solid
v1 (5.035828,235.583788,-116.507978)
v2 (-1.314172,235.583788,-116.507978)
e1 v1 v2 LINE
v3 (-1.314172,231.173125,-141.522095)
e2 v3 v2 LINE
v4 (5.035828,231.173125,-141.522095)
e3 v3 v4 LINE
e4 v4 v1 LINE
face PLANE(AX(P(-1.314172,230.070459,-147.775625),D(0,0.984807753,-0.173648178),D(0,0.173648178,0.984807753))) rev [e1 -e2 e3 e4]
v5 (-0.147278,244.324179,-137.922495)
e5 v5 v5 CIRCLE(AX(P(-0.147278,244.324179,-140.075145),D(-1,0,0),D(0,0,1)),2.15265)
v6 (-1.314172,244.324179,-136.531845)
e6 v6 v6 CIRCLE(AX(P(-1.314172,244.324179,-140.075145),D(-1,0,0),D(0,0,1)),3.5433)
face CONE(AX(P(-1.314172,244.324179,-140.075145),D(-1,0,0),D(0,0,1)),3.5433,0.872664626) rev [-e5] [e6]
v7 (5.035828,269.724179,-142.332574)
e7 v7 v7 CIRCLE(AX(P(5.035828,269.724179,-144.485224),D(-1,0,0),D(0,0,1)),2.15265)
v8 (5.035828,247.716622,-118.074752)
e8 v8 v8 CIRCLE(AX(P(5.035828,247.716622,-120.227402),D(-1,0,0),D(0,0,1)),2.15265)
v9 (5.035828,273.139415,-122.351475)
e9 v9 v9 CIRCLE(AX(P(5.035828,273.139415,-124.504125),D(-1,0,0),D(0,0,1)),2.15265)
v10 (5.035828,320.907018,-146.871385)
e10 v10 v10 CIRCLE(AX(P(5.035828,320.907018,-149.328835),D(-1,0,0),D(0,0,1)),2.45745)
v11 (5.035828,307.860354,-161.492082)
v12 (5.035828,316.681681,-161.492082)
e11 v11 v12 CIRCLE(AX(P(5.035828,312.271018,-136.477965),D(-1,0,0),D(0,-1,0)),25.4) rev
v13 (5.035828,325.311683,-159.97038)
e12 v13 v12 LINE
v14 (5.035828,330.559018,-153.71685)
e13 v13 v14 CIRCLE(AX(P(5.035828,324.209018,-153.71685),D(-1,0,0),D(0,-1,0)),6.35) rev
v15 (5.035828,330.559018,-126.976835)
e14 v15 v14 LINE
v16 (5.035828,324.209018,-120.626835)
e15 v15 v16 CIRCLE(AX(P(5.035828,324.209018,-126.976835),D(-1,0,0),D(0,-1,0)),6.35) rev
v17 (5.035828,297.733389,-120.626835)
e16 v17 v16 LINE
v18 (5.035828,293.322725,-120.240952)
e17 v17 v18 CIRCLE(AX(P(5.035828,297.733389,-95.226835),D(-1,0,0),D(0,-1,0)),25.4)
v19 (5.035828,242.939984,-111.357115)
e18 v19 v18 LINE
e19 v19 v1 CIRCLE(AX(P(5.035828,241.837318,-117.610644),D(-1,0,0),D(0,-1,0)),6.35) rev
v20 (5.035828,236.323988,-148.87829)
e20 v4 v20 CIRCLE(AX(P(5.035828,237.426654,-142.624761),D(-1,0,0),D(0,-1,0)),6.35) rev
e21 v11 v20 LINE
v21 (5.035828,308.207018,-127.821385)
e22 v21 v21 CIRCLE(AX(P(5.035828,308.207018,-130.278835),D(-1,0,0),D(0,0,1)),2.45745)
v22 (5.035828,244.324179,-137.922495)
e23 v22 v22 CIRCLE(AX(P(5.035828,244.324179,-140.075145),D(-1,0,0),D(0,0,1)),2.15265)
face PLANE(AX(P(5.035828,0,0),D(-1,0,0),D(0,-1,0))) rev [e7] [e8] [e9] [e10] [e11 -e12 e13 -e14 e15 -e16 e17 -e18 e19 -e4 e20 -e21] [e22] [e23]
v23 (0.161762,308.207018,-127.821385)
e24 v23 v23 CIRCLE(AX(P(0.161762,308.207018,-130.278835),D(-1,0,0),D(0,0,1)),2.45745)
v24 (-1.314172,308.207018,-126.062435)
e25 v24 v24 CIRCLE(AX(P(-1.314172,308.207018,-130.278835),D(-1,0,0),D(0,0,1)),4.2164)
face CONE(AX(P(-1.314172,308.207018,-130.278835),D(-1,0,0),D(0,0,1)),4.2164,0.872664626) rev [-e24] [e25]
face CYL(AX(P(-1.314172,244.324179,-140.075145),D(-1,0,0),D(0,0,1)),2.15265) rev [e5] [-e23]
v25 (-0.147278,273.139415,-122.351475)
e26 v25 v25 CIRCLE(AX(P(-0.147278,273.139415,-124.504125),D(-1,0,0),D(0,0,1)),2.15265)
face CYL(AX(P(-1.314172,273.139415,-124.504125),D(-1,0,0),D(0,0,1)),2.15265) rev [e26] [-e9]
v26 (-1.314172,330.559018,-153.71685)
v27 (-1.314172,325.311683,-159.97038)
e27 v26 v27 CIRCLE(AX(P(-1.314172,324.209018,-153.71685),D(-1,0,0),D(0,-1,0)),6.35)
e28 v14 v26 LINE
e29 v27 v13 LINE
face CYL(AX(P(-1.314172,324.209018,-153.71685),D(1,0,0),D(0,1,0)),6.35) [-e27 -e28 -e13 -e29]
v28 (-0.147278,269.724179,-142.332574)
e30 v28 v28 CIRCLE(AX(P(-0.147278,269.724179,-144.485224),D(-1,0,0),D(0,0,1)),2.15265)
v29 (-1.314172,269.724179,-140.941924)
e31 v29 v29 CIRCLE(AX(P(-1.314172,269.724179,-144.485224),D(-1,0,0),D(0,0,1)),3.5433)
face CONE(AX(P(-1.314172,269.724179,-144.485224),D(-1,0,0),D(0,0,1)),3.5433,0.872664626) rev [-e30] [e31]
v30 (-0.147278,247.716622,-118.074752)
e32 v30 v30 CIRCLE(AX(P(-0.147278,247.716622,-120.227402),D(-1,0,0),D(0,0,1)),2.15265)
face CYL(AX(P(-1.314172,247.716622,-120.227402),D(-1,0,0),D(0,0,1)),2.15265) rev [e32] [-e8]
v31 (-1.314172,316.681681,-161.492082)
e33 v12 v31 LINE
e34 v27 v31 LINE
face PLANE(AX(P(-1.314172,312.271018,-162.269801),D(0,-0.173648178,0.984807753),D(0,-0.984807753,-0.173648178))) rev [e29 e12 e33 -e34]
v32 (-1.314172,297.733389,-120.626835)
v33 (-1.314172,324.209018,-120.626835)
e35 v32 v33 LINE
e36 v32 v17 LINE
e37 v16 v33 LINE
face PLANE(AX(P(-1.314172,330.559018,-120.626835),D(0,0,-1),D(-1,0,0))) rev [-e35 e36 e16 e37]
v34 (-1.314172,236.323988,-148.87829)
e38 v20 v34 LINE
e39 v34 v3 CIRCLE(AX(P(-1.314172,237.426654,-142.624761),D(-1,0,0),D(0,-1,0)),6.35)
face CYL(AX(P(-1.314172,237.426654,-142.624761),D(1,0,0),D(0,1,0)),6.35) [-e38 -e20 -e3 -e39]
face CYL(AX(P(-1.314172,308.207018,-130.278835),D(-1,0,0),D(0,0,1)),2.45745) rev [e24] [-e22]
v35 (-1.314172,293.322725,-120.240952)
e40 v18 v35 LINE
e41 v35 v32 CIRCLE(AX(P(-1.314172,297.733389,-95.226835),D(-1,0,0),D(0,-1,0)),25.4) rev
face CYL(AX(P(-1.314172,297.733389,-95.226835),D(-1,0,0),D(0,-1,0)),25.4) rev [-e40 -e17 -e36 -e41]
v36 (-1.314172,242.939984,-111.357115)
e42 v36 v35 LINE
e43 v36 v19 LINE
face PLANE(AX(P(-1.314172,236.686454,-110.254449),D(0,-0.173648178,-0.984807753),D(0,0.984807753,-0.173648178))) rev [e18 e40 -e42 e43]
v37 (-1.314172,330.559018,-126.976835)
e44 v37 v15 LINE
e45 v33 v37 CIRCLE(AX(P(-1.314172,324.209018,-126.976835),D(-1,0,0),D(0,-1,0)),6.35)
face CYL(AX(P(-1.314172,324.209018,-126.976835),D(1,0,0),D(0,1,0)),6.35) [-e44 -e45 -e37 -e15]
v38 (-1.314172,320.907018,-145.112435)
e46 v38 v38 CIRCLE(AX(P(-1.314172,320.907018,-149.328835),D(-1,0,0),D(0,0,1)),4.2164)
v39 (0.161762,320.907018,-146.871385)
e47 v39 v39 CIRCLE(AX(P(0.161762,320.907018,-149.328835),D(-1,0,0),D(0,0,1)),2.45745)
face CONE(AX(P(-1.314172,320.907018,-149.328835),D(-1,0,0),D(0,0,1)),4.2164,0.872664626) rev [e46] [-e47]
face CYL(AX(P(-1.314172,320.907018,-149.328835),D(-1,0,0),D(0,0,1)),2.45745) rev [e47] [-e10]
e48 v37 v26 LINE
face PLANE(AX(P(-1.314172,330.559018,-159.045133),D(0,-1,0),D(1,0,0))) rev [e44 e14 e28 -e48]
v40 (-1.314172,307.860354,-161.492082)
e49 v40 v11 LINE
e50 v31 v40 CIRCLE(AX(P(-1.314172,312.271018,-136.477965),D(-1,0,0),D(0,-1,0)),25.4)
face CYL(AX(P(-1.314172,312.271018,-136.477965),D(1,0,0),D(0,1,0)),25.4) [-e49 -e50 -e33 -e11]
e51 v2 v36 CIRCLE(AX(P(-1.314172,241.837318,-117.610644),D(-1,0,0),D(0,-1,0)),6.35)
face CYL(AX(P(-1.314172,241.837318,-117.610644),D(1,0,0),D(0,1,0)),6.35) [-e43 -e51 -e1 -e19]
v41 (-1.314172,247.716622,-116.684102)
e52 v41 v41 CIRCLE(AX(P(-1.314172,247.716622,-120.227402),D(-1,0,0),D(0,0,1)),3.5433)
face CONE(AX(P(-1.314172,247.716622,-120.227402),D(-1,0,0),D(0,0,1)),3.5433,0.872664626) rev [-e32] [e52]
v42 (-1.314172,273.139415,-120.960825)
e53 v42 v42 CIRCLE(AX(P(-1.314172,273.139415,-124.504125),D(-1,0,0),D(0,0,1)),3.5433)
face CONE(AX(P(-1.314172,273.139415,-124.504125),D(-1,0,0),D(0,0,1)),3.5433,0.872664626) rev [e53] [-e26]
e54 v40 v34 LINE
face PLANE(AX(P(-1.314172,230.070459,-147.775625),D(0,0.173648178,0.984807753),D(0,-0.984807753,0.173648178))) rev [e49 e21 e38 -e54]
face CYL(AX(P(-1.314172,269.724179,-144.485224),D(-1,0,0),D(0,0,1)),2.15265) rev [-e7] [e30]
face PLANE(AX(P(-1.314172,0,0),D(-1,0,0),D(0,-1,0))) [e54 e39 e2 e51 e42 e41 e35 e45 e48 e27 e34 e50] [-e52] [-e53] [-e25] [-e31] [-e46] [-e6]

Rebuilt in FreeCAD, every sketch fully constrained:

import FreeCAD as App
import Part
import Sketcher
Q = App.Units.Quantity


def edges_at(feature, points):
    """Names of the edges that pass closest to the given points."""
    edges = feature.Shape.Edges
    near = lambda p: min(range(len(edges)), key=lambda i: edges[i].distToShape(Part.Vertex(*p))[0])
    return sorted({f"Edge{near(p) + 1}" for p in points})

doc = App.newDocument("Part")
params = doc.addObject("Spreadsheet::Sheet", "Params")
for row, (alias, value) in enumerate([
    ("sketch1_length", "1.5 in"),
    ("pad1_length", "0.25 in"),
    ("fillet_radius", "1 in"),
    ("hole_diameter", "0.1695 in"),
    ("hole_csink_diameter", "0.279 in"),
    ("hole2_diameter", "0.1935 in"),
    ("hole2_csink_diameter", "0.332 in"),
    ("fillet2_radius", "0.25 in"),
], start=1):
    params.set(f"A{row}", alias)
    params.set(f"B{row}", "=" + value)
    params.setAlias(f"B{row}", alias)

body = doc.addObject("PartDesign::Body", "Body")

# Sketch on YZ plane
sketch1 = doc.addObject("Sketcher::SketchObject", "Sketch")
body.addObject(sketch1)
sketch1.AttachmentSupport = (doc.YZ_Plane, [""])
sketch1.MapMode = "FlatFace"
sketch1.AttachmentOffset = App.Placement(App.Vector(0, 0, 5.035828), App.Rotation())
sketch1.addGeometry([
    Part.LineSegment(App.Vector(312, -162, 0), App.Vector(230, -148, 0)),  # 0
    Part.LineSegment(App.Vector(230, -148, 0), App.Vector(237, -110, 0)),  # 1
    Part.LineSegment(App.Vector(237, -110, 0), App.Vector(296, -121, 0)),  # 2
    Part.LineSegment(App.Vector(296, -121, 0), App.Vector(331, -121, 0)),  # 3
    Part.LineSegment(App.Vector(331, -121, 0), App.Vector(331, -159, 0)),  # 4
    Part.LineSegment(App.Vector(331, -159, 0), App.Vector(312, -162, 0)),  # 5
], False)
sketch1.addConstraint([
    Sketcher.Constraint("Coincident", 0, 2, 1, 1),
    Sketcher.Constraint("Coincident", 1, 2, 2, 1),
    Sketcher.Constraint("Coincident", 2, 2, 3, 1),
    Sketcher.Constraint("Coincident", 3, 2, 4, 1),
    Sketcher.Constraint("Coincident", 4, 2, 5, 1),
    Sketcher.Constraint("Coincident", 5, 2, 0, 1),
    Sketcher.Constraint("Horizontal", 3),
    Sketcher.Constraint("Vertical", 4),
    Sketcher.Constraint("Perpendicular", 0, 1),
    Sketcher.Constraint("Perpendicular", 1, 2),
    Sketcher.Constraint("Angle", 0, Q("170 deg")),
    Sketcher.Constraint("Angle", 5, Q("-170 deg")),
    Sketcher.Constraint("Distance", 1, Q("1.5 in")),
    Sketcher.Constraint("DistanceX", 5, 2, 4, 2, Q("0.72 in")),
    Sketcher.Constraint("DistanceY", 4, 2, 4, 1, Q("38.418298 mm")),
    Sketcher.Constraint("DistanceY", 5, 2, -1, 1, Q("162.269801 mm")),
    Sketcher.Constraint("Distance", 2, Q("59.732189 mm")),
    Sketcher.Constraint("DistanceX", -1, 1, 0, 2, Q("230.070459 mm")),
])
sketch1.setExpression("Constraints[12]", "Params.sketch1_length")
pad1 = doc.addObject("PartDesign::Pad", "Pad")
body.addObject(pad1)
pad1.Profile = sketch1
pad1.setExpression("Length", "Params.pad1_length")
pad1.Reversed = True
doc.recompute()

fillet = doc.addObject("PartDesign::Fillet", "Fillet")
body.addObject(fillet)
fillet.Base = (pad1, edges_at(pad1, [(1.861, 312.271, -162.27), (1.861, 295.511, -120.627)]))
fillet.setExpression("Radius", "Params.fillet_radius")

# Sketch on YZ plane
sketch2 = doc.addObject("Sketcher::SketchObject", "Sketch001")
body.addObject(sketch2)
sketch2.AttachmentSupport = (doc.YZ_Plane, [""])
sketch2.MapMode = "FlatFace"
sketch2.AttachmentOffset = App.Placement(App.Vector(0, 0, -1.314172), App.Rotation())
sketch2.addGeometry([
    Part.Circle(App.Vector(273.1, -124.5, 0), App.Vector(0, 0, 1), 2.2),
    Part.Circle(App.Vector(269.7, -144.5, 0), App.Vector(0, 0, 1), 2.2),
    Part.Circle(App.Vector(244.3, -140.1, 0), App.Vector(0, 0, 1), 2.2),
    Part.Circle(App.Vector(247.7, -120.2, 0), App.Vector(0, 0, 1), 2.2),
], False)
sketch2.addConstraint([
    Sketcher.Constraint("Equal", 0, 1),
    Sketcher.Constraint("Equal", 1, 2),
    Sketcher.Constraint("Equal", 2, 3),
    Sketcher.Constraint("DistanceX", 2, 3, 1, 3, Q("1 in")),
    Sketcher.Constraint("Diameter", 0, Q("0.1695 in")),
    Sketcher.Constraint("DistanceY", 1, 3, 0, 3, Q("19.981099 mm")),
    Sketcher.Constraint("DistanceX", -1, 1, 1, 3, Q("269.724179 mm")),
    Sketcher.Constraint("DistanceX", -1, 1, 3, 3, Q("247.716622 mm")),
    Sketcher.Constraint("DistanceY", 1, 3, 2, 3, Q("4.410079 mm")),
    Sketcher.Constraint("DistanceY", 1, 3, 3, 3, Q("24.257822 mm")),
    Sketcher.Constraint("DistanceX", -1, 1, 0, 3, Q("273.139415 mm")),
    Sketcher.Constraint("DistanceY", 0, 3, -1, 1, Q("124.504125 mm")),
])
doc.recompute()
hole = doc.addObject("PartDesign::Hole", "Hole")
body.addObject(hole)
hole.Profile = sketch2
hole.ThreadType = "None"
hole.setExpression("Diameter", "Params.hole_diameter")
hole.DepthType = "ThroughAll"
hole.HoleCutType = "Countersink"
hole.setExpression("HoleCutDiameter", "Params.hole_csink_diameter")
hole.HoleCutCountersinkAngle = 100
hole.Reversed = True

# Sketch on YZ plane
sketch3 = doc.addObject("Sketcher::SketchObject", "Sketch002")
body.addObject(sketch3)
sketch3.AttachmentSupport = (doc.YZ_Plane, [""])
sketch3.MapMode = "FlatFace"
sketch3.AttachmentOffset = App.Placement(App.Vector(0, 0, -1.314172), App.Rotation())
sketch3.addGeometry([
    Part.Circle(App.Vector(320.9, -149.3, 0), App.Vector(0, 0, 1), 2.5),
    Part.Circle(App.Vector(308.2, -130.3, 0), App.Vector(0, 0, 1), 2.5),
], False)
sketch3.addConstraint([
    Sketcher.Constraint("Equal", 0, 1),
    Sketcher.Constraint("Diameter", 0, Q("0.1935 in")),
    Sketcher.Constraint("DistanceX", 1, 3, 0, 3, Q("0.5 in")),
    Sketcher.Constraint("DistanceY", 0, 3, 1, 3, Q("0.75 in")),
    Sketcher.Constraint("DistanceX", -1, 1, 0, 3, Q("320.907018 mm")),
    Sketcher.Constraint("DistanceY", 0, 3, -1, 1, Q("149.328835 mm")),
])
doc.recompute()
hole2 = doc.addObject("PartDesign::Hole", "Hole001")
body.addObject(hole2)
hole2.Profile = sketch3
hole2.ThreadType = "None"
hole2.setExpression("Diameter", "Params.hole2_diameter")
hole2.DepthType = "ThroughAll"
hole2.HoleCutType = "Countersink"
hole2.setExpression("HoleCutDiameter", "Params.hole2_csink_diameter")
hole2.HoleCutCountersinkAngle = 100
hole2.Reversed = True
doc.recompute()

fillet2 = doc.addObject("PartDesign::Fillet", "Fillet001")
body.addObject(fillet2)
fillet2.Base = (hole2, edges_at(hole2, [
    (1.861, 230.07, -147.776),
    (1.861, 330.559, -159.045),
    (1.861, 330.559, -120.627),
    (1.861, 236.686, -110.254),
]))
fillet2.setExpression("Radius", "Params.fillet2_radius")

doc.recompute()
